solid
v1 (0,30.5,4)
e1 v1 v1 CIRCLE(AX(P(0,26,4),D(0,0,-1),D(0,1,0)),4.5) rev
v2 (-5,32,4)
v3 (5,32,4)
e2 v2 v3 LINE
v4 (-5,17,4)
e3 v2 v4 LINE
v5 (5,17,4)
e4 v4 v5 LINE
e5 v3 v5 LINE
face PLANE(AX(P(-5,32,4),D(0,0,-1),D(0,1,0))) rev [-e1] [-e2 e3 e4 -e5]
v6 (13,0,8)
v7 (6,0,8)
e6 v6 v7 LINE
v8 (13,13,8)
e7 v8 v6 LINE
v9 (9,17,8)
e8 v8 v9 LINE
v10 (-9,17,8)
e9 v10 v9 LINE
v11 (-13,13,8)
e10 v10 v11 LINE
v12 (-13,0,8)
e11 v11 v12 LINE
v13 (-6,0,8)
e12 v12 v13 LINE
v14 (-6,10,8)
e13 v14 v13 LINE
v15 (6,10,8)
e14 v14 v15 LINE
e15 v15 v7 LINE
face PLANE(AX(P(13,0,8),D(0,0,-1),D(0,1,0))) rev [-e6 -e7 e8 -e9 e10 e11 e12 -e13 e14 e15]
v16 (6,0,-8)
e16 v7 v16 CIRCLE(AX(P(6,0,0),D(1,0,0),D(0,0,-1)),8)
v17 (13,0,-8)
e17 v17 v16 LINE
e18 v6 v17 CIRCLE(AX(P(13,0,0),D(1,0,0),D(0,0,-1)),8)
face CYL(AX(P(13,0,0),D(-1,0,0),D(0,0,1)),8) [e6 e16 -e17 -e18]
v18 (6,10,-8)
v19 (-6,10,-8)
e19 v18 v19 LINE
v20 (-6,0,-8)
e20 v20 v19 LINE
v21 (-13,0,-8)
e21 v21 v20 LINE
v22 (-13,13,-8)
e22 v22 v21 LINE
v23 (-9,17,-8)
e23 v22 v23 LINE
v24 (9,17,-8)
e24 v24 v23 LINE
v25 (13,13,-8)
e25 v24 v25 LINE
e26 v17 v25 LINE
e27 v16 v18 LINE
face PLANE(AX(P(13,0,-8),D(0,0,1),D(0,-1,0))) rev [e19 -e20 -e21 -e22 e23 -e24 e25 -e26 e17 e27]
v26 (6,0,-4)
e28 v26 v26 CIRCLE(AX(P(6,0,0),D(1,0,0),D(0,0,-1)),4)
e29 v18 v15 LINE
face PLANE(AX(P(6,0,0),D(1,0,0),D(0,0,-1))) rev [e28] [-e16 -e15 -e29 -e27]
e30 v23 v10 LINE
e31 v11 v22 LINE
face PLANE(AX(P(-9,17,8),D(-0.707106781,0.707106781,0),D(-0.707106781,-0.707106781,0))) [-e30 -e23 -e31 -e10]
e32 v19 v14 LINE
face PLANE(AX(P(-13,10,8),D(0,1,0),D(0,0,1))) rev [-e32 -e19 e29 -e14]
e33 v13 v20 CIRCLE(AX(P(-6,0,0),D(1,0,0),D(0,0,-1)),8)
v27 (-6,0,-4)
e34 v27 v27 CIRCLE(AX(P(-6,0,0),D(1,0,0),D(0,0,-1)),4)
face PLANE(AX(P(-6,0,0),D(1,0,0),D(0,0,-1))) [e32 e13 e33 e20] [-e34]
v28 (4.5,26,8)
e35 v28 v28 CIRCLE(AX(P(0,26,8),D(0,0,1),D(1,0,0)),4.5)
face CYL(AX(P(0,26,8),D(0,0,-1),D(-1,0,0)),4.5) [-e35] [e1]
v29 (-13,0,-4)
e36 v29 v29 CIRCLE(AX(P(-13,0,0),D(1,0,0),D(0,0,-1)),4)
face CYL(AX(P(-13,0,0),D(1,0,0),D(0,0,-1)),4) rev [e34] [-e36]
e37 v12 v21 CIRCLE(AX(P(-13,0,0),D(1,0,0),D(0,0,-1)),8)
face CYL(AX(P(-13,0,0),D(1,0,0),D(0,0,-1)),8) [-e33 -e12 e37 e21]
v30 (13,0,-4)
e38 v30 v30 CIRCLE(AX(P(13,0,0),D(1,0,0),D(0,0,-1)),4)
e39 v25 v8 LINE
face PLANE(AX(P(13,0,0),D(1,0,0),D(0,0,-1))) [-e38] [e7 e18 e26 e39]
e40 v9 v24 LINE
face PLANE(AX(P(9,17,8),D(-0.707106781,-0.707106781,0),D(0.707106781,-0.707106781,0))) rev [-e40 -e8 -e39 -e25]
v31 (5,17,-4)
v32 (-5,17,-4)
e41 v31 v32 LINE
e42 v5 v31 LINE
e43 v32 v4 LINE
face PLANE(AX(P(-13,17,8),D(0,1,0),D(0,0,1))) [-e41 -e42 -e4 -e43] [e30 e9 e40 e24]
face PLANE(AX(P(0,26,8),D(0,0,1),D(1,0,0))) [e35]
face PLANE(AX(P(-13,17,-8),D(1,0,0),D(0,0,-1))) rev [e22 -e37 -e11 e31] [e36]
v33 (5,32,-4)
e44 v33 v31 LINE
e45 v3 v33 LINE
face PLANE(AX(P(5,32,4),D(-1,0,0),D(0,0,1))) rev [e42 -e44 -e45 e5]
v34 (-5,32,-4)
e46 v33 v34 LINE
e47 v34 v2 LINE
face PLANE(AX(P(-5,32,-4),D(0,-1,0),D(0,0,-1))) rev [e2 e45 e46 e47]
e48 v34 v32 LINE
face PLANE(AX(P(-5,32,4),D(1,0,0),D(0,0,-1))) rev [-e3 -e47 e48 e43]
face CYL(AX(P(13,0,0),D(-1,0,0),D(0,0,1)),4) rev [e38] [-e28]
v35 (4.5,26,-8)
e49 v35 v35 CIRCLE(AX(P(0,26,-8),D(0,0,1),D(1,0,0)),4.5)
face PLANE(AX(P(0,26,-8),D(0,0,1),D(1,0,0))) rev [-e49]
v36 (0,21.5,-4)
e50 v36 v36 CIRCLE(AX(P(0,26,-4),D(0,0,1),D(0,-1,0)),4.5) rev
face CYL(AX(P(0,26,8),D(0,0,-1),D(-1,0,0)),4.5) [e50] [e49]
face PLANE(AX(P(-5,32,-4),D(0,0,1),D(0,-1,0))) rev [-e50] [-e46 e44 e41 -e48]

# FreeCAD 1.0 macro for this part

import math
import FreeCAD as App
import Part
import Sketcher
from FreeCAD import Vector


def edges_at(feature, points):
    """Names of the edges that pass closest to the given points."""
    edges = feature.Shape.Edges
    near = lambda p: min(range(len(edges)), key=lambda i: edges[i].distToShape(Part.Vertex(*p))[0])
    return sorted({f"Edge{near(p) + 1}" for p in points})


def add_polygon(sketch, points):
    """Adds a closed chain of lines whose ends are joined by coincident constraints."""
    first, n = sketch.GeometryCount, len(points)
    for a, b in zip(points, points[1:] + points[:1]):
        sketch.addGeometry(Part.LineSegment(App.Vector(*a, 0), App.Vector(*b, 0)), False)
    for i in range(n):
        sketch.addConstraint(Sketcher.Constraint("Coincident", first + i, 2, first + (i + 1) % n, 1))

doc = App.newDocument("Part")
body = doc.addObject("PartDesign::Body", "Body")

sketch1 = body.newObject("Sketcher::SketchObject", "Sketch")
sketch1.AttachmentSupport = (doc.getObject("YZ_Plane"), [""])
sketch1.MapMode = "FlatFace"
sketch1.AttachmentOffset = App.Placement(Vector(0, 0, 6), App.Rotation())
sketch1.addGeometry([
    Part.LineSegment(Vector(10, -8, 0), Vector(10, 8, 0)),
    Part.LineSegment(Vector(10, 8, 0), Vector(0, 8, 0)),
    Part.ArcOfCircle(Part.Circle(Vector(0, 0, 0), Vector(0, 0, 1), 8), math.radians(90), math.radians(270)),
    Part.LineSegment(Vector(0, -8, 0), Vector(10, -8, 0)),
    Part.Circle(Vector(0, 0, 0), Vector(0, 0, 1), 4),
], False)
sketch1.addConstraint([
    Sketcher.Constraint("Coincident", 0, 2, 1, 1),
    Sketcher.Constraint("Tangent", 1, 2, 2, 1),
    Sketcher.Constraint("Tangent", 2, 2, 3, 1),
    Sketcher.Constraint("Coincident", 3, 2, 0, 1),
    Sketcher.Constraint("Vertical", 0),
    Sketcher.Constraint("Horizontal", 1),
    Sketcher.Constraint("Horizontal", 3),
    Sketcher.Constraint("Coincident", 2, 3, -1, 1),
    Sketcher.Constraint("Coincident", 4, 3, -1, 1),
    Sketcher.Constraint("Diameter", 4, 8.0),
    Sketcher.Constraint("Radius", 2, 8.0),
    Sketcher.Constraint("DistanceX", 1, 2, 1, 1, 10.0),
])
pad1 = body.newObject("PartDesign::Pad", "Pad")
pad1.Profile = sketch1
pad1.Length = 7
body2 = doc.addObject("PartDesign::Body", "Body001")

sketch2 = body2.newObject("Sketcher::SketchObject", "Sketch001")
sketch2.AttachmentSupport = (doc.getObject("YZ_Plane001"), [""])
sketch2.MapMode = "FlatFace"
sketch2.AttachmentOffset = App.Placement(Vector(0, 0, -6), App.Rotation())
sketch2.addGeometry([
    Part.LineSegment(Vector(10, -8, 0), Vector(10, 8, 0)),
    Part.LineSegment(Vector(10, 8, 0), Vector(0, 8, 0)),
    Part.ArcOfCircle(Part.Circle(Vector(0, 0, 0), Vector(0, 0, 1), 8), math.radians(90), math.radians(270)),
    Part.LineSegment(Vector(0, -8, 0), Vector(10, -8, 0)),
    Part.Circle(Vector(0, 0, 0), Vector(0, 0, 1), 4),
], False)
sketch2.addConstraint([
    Sketcher.Constraint("Coincident", 0, 2, 1, 1),
    Sketcher.Constraint("Tangent", 1, 2, 2, 1),
    Sketcher.Constraint("Tangent", 2, 2, 3, 1),
    Sketcher.Constraint("Coincident", 3, 2, 0, 1),
    Sketcher.Constraint("Vertical", 0),
    Sketcher.Constraint("Horizontal", 1),
    Sketcher.Constraint("Horizontal", 3),
    Sketcher.Constraint("Coincident", 2, 3, -1, 1),
    Sketcher.Constraint("Coincident", 4, 3, -1, 1),
    Sketcher.Constraint("Diameter", 4, 8.0),
    Sketcher.Constraint("Radius", 2, 8.0),
    Sketcher.Constraint("DistanceX", 1, 2, 1, 1, 10.0),
])
pad2 = body2.newObject("PartDesign::Pad", "Pad001")
pad2.Profile = sketch2
pad2.Length = 7
pad2.Reversed = True
body.AllowCompound = True
doc.recompute()

boolean = body.newObject("PartDesign::Boolean", "Boolean")
boolean.Type = "Fuse"
boolean.addObjects([body2])

sketch3 = body.newObject("Sketcher::SketchObject", "Sketch002")
sketch3.AttachmentSupport = (doc.getObject("XZ_Plane"), [""])
sketch3.MapMode = "FlatFace"
sketch3.AttachmentOffset = App.Placement(Vector(0, 0, -10), App.Rotation())
add_polygon(sketch3, [(-13, -8), (-13, 8), (13, 8), (13, -8)])
sketch3.addConstraint([
    Sketcher.Constraint("Vertical", 0),
    Sketcher.Constraint("Horizontal", 1),
    Sketcher.Constraint("Vertical", 2),
    Sketcher.Constraint("Horizontal", 3),
    Sketcher.Constraint("Symmetric", 0, 2, 2, 2, -1, 1),
    Sketcher.Constraint("DistanceX", 1, 1, 1, 2, 26.0),
    Sketcher.Constraint("DistanceY", 0, 1, 0, 2, 16.0),
])
pad3 = body.newObject("PartDesign::Pad", "Pad002")
pad3.Profile = sketch3
pad3.Length = 7
pad3.Reversed = True
doc.recompute()

chamfer = body.newObject("PartDesign::Chamfer", "Chamfer")
chamfer.Base = (pad3, edges_at(pad3, [(-13, 17, 0), (13, 17, 0)]))
chamfer.Size = 4

sketch4 = body.newObject("Sketcher::SketchObject", "Sketch003")
sketch4.AttachmentSupport = (doc.getObject("XZ_Plane"), [""])
sketch4.MapMode = "FlatFace"
sketch4.AttachmentOffset = App.Placement(Vector(0, 0, -17), App.Rotation())
add_polygon(sketch4, [(-5, -4), (-5, 4), (5, 4), (5, -4)])
sketch4.addConstraint([
    Sketcher.Constraint("Vertical", 0),
    Sketcher.Constraint("Horizontal", 1),
    Sketcher.Constraint("Vertical", 2),
    Sketcher.Constraint("Horizontal", 3),
    Sketcher.Constraint("Symmetric", 0, 2, 2, 2, -1, 1),
    Sketcher.Constraint("DistanceX", 1, 1, 1, 2, 10.0),
    Sketcher.Constraint("DistanceY", 0, 1, 0, 2, 8.0),
])
pad4 = body.newObject("PartDesign::Pad", "Pad003")
pad4.Profile = sketch4
pad4.Length = 15
pad4.Reversed = True

sketch5 = body.newObject("Sketcher::SketchObject", "Sketch004")
sketch5.AttachmentSupport = (doc.getObject("XY_Plane"), [""])
sketch5.MapMode = "FlatFace"
sketch5.addGeometry(Part.Circle(Vector(0, 26, 0), Vector(0, 0, 1), 4.5), False)
sketch5.addConstraint([
    Sketcher.Constraint("PointOnObject", 0, 3, -2),
    Sketcher.Constraint("Diameter", 0, 9.0),
    Sketcher.Constraint("DistanceY", -1, 1, 0, 3, 26.0),
])
pad5 = body.newObject("PartDesign::Pad", "Pad004")
pad5.Profile = sketch5
pad5.Length = 16
pad5.Midplane = True

doc.recompute()
